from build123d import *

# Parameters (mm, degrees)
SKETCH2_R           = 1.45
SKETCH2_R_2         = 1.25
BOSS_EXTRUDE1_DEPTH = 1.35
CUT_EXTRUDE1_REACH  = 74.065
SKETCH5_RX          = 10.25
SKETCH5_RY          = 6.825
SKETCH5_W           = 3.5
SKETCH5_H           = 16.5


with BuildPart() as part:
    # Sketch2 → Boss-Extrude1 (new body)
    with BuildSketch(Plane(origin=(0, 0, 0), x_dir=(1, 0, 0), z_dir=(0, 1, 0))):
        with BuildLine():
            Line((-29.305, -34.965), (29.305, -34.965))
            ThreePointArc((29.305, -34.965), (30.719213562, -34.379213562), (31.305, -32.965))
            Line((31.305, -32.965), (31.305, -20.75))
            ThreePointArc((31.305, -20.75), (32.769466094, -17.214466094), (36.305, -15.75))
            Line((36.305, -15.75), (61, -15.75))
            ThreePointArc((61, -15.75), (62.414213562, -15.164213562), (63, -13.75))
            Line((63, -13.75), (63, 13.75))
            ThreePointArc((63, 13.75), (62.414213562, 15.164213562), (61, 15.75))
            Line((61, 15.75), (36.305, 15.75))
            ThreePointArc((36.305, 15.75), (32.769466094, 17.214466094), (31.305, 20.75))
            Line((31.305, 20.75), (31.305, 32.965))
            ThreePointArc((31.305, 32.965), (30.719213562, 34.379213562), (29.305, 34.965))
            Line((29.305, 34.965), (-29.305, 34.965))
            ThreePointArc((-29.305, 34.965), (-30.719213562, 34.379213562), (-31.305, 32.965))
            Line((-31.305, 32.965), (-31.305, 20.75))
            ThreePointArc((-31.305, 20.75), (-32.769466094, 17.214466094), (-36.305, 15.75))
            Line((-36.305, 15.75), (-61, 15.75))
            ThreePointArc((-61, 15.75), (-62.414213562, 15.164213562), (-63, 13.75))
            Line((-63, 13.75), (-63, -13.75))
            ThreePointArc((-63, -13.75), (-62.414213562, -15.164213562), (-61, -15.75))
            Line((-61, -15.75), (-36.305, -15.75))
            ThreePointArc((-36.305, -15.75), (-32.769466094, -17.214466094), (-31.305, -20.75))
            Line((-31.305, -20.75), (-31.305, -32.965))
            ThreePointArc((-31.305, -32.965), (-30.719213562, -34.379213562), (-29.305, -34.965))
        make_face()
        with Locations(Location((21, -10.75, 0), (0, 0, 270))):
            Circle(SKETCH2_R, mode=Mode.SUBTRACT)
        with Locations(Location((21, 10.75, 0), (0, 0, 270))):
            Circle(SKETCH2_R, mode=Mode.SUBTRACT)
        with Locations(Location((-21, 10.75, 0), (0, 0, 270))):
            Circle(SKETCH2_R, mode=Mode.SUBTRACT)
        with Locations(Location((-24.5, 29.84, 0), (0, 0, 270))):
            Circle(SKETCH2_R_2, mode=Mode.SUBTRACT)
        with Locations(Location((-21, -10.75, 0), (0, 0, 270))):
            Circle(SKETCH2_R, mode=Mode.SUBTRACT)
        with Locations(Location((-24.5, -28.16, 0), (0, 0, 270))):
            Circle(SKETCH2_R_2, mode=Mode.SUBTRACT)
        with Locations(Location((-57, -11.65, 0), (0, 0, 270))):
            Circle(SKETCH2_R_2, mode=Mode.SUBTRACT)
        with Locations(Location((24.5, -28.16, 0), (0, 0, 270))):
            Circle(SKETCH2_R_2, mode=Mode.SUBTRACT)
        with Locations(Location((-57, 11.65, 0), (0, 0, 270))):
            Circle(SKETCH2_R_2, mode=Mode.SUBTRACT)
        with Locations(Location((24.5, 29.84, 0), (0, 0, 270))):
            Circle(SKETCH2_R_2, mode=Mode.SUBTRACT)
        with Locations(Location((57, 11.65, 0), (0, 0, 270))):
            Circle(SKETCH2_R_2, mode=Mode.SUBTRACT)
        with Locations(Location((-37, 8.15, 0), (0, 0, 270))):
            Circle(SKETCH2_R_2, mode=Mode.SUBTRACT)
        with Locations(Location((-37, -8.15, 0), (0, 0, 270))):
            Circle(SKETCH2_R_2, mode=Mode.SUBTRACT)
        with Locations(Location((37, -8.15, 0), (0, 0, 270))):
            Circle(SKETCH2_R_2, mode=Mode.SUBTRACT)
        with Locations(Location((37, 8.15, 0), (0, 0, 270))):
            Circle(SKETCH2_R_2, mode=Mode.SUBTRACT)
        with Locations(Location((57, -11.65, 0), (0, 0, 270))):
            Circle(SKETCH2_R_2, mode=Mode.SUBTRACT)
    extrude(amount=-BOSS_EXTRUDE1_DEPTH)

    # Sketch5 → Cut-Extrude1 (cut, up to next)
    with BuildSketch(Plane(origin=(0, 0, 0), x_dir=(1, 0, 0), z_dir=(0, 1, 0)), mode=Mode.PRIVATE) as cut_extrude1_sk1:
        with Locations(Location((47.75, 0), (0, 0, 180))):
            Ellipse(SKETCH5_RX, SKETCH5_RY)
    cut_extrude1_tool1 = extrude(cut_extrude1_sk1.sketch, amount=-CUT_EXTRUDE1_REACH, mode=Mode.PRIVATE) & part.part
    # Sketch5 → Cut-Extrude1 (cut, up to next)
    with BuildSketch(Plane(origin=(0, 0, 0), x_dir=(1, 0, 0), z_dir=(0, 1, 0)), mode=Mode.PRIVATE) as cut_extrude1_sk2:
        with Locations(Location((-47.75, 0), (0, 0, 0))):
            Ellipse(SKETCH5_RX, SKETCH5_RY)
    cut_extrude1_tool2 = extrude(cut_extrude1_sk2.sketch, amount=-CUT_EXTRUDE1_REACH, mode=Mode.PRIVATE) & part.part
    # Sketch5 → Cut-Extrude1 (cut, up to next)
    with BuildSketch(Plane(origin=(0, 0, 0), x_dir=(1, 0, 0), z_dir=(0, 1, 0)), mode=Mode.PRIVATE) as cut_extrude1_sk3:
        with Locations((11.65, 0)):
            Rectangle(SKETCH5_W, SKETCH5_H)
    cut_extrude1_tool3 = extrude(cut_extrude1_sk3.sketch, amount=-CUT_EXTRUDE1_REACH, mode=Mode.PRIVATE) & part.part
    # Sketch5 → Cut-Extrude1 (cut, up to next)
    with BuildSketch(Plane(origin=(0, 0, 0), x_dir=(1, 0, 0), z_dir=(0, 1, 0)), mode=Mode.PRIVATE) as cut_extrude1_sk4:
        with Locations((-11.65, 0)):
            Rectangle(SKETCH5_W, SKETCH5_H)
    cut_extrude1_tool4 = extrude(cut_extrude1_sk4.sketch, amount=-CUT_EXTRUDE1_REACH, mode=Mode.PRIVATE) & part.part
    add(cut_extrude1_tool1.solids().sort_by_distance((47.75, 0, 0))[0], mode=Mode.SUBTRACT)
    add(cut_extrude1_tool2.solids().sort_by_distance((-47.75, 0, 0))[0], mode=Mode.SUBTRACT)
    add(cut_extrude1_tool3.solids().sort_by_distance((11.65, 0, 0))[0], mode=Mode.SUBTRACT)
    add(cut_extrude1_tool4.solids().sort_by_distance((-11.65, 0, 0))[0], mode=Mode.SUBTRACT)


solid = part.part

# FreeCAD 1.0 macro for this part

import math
import FreeCAD as App
import Part
import Sketcher

V = App.Vector
Q = App.Units.Quantity


def add_polygon(sketch, points):
    """Adds a closed chain of lines whose ends are joined by coincident constraints."""
    first, n = sketch.GeometryCount, len(points)
    for a, b in zip(points, points[1:] + points[:1]):
        sketch.addGeometry(Part.LineSegment(App.Vector(*a, 0), App.Vector(*b, 0)), False)
    for i in range(n):
        sketch.addConstraint(Sketcher.Constraint("Coincident", first + i, 2, first + (i + 1) % n, 1))

doc = App.newDocument("Part")
body = doc.addObject("PartDesign::Body", "Body")

# Sketch on XZ plane
sketch1 = body.newObject("Sketcher::SketchObject", "Sketch")
sketch1.AttachmentSupport = (doc.getObject("XZ_Plane"), [""])
sketch1.MapMode = "FlatFace"
sketch1.addGeometry([
    Part.LineSegment(V(-29.3, 35, 0), V(29.3, 35, 0)),  # 0
    Part.ArcOfCircle(Part.Circle(V(29.3, 33, 0), V(0, 0, 1), 2), math.radians(0), math.radians(90)),  # 1
    Part.LineSegment(V(31.3, 33, 0), V(31.3, 20.8, 0)),  # 2
    Part.ArcOfCircle(Part.Circle(V(36.3, 20.8, 0), V(0, 0, 1), 5), math.radians(180), math.radians(270)),  # 3
    Part.LineSegment(V(36.3, 15.8, 0), V(61, 15.8, 0)),  # 4
    Part.ArcOfCircle(Part.Circle(V(61, 13.7, 0), V(0, 0, 1), 2), math.radians(0), math.radians(90)),  # 5
    Part.LineSegment(V(63, 13.8, 0), V(63, -13.8, 0)),  # 6
    Part.ArcOfCircle(Part.Circle(V(61, -13.7, 0), V(0, 0, 1), 2), math.radians(-90), math.radians(0)),  # 7
    Part.LineSegment(V(61, -15.8, 0), V(36.3, -15.8, 0)),  # 8
    Part.ArcOfCircle(Part.Circle(V(36.3, -20.8, 0), V(0, 0, 1), 5), math.radians(90), math.radians(180)),  # 9
    Part.LineSegment(V(31.3, -20.8, 0), V(31.3, -33, 0)),  # 10
    Part.ArcOfCircle(Part.Circle(V(29.3, -33, 0), V(0, 0, 1), 2), math.radians(-90), math.radians(0)),  # 11
    Part.LineSegment(V(29.3, -35, 0), V(-29.3, -35, 0)),  # 12
    Part.ArcOfCircle(Part.Circle(V(-29.3, -33, 0), V(0, 0, 1), 2), math.radians(-180), math.radians(-90)),  # 13
    Part.LineSegment(V(-31.3, -33, 0), V(-31.3, -20.8, 0)),  # 14
    Part.ArcOfCircle(Part.Circle(V(-36.3, -20.8, 0), V(0, 0, 1), 5), math.radians(0), math.radians(90)),  # 15
    Part.LineSegment(V(-36.3, -15.8, 0), V(-61, -15.8, 0)),  # 16
    Part.ArcOfCircle(Part.Circle(V(-61, -13.7, 0), V(0, 0, 1), 2), math.radians(-180), math.radians(-90)),  # 17
    Part.LineSegment(V(-63, -13.8, 0), V(-63, 13.8, 0)),  # 18
    Part.ArcOfCircle(Part.Circle(V(-61, 13.7, 0), V(0, 0, 1), 2), math.radians(90), math.radians(180)),  # 19
    Part.LineSegment(V(-61, 15.8, 0), V(-36.3, 15.8, 0)),  # 20
    Part.ArcOfCircle(Part.Circle(V(-36.3, 20.8, 0), V(0, 0, 1), 5), math.radians(-90), math.radians(0)),  # 21
    Part.LineSegment(V(-31.3, 20.8, 0), V(-31.3, 33, 0)),  # 22
    Part.ArcOfCircle(Part.Circle(V(-29.3, 33, 0), V(0, 0, 1), 2), math.radians(90), math.radians(180)),  # 23
    Part.Circle(V(-24.5, 28.2, 0), V(0, 0, 1), 1.2),  # 24
    Part.Circle(V(-57, 11.7, 0), V(0, 0, 1), 1.2),  # 25
    Part.Circle(V(-37, 8.2, 0), V(0, 0, 1), 1.2),  # 26
    Part.Circle(V(-21, 10.8, 0), V(0, 0, 1), 1.4),  # 27
    Part.Circle(V(24.5, 28.2, 0), V(0, 0, 1), 1.2),  # 28
    Part.Circle(V(21, 10.8, 0), V(0, 0, 1), 1.4),  # 29
    Part.Circle(V(37, 8.2, 0), V(0, 0, 1), 1.2),  # 30
    Part.Circle(V(57, 11.7, 0), V(0, 0, 1), 1.2),  # 31
    Part.Circle(V(-37, -8.2, 0), V(0, 0, 1), 1.2),  # 32
    Part.Circle(V(-57, -11.7, 0), V(0, 0, 1), 1.2),  # 33
    Part.Circle(V(-21, -10.8, 0), V(0, 0, 1), 1.4),  # 34
    Part.Circle(V(-24.5, -29.8, 0), V(0, 0, 1), 1.2),  # 35
    Part.Circle(V(21, -10.8, 0), V(0, 0, 1), 1.4),  # 36
    Part.Circle(V(37, -8.2, 0), V(0, 0, 1), 1.2),  # 37
    Part.Circle(V(57, -11.7, 0), V(0, 0, 1), 1.2),  # 38
    Part.Circle(V(24.5, -29.8, 0), V(0, 0, 1), 1.2),  # 39
], False)
sketch1.addConstraint([
    Sketcher.Constraint("Tangent", 0, 2, 1, 2),
    Sketcher.Constraint("Tangent", 1, 1, 2, 1),
    Sketcher.Constraint("Tangent", 2, 2, 3, 1),
    Sketcher.Constraint("Tangent", 3, 2, 4, 1),
    Sketcher.Constraint("Tangent", 4, 2, 5, 2),
    Sketcher.Constraint("Tangent", 5, 1, 6, 1),
    Sketcher.Constraint("Tangent", 6, 2, 7, 2),
    Sketcher.Constraint("Tangent", 7, 1, 8, 1),
    Sketcher.Constraint("Tangent", 8, 2, 9, 1),
    Sketcher.Constraint("Tangent", 9, 2, 10, 1),
    Sketcher.Constraint("Tangent", 10, 2, 11, 2),
    Sketcher.Constraint("Tangent", 11, 1, 12, 1),
    Sketcher.Constraint("Tangent", 12, 2, 13, 2),
    Sketcher.Constraint("Tangent", 13, 1, 14, 1),
    Sketcher.Constraint("Tangent", 14, 2, 15, 1),
    Sketcher.Constraint("Tangent", 15, 2, 16, 1),
    Sketcher.Constraint("Tangent", 16, 2, 17, 2),
    Sketcher.Constraint("Tangent", 17, 1, 18, 1),
    Sketcher.Constraint("Tangent", 18, 2, 19, 2),
    Sketcher.Constraint("Tangent", 19, 1, 20, 1),
    Sketcher.Constraint("Tangent", 20, 2, 21, 1),
    Sketcher.Constraint("Tangent", 21, 2, 22, 1),
    Sketcher.Constraint("Tangent", 22, 2, 23, 2),
    Sketcher.Constraint("Tangent", 23, 1, 0, 1),
    Sketcher.Constraint("Horizontal", 0),
    Sketcher.Constraint("Vertical", 2),
    Sketcher.Constraint("Horizontal", 4),
    Sketcher.Constraint("Vertical", 6),
    Sketcher.Constraint("Horizontal", 8),
    Sketcher.Constraint("Vertical", 10),
    Sketcher.Constraint("Horizontal", 12),
    Sketcher.Constraint("Vertical", 14),
    Sketcher.Constraint("Horizontal", 16),
    Sketcher.Constraint("Vertical", 18),
    Sketcher.Constraint("Horizontal", 20),
    Sketcher.Constraint("Vertical", 22),
    Sketcher.Constraint("Equal", 1, 5),
    Sketcher.Constraint("Equal", 5, 7),
    Sketcher.Constraint("Equal", 3, 9),
    Sketcher.Constraint("Equal", 7, 11),
    Sketcher.Constraint("Equal", 11, 13),
    Sketcher.Constraint("Equal", 9, 15),
    Sketcher.Constraint("Equal", 13, 17),
    Sketcher.Constraint("Equal", 17, 19),
    Sketcher.Constraint("Equal", 15, 21),
    Sketcher.Constraint("Equal", 19, 23),
    Sketcher.Constraint("Equal", 24, 25),
    Sketcher.Constraint("Equal", 25, 26),
    Sketcher.Constraint("Equal", 26, 28),
    Sketcher.Constraint("Equal", 27, 29),
    Sketcher.Constraint("Equal", 28, 30),
    Sketcher.Constraint("Equal", 30, 31),
    Sketcher.Constraint("Equal", 31, 32),
    Sketcher.Constraint("Equal", 32, 33),
    Sketcher.Constraint("Equal", 29, 34),
    Sketcher.Constraint("Equal", 33, 35),
    Sketcher.Constraint("Equal", 34, 36),
    Sketcher.Constraint("Equal", 35, 37),
    Sketcher.Constraint("Equal", 37, 38),
    Sketcher.Constraint("Equal", 38, 39),
    Sketcher.Constraint("Symmetric", 1, 3, 13, 3, -1, 1),
    Sketcher.Constraint("Symmetric", 5, 3, 17, 3, -1, 1),
    Sketcher.Constraint("Symmetric", 9, 3, 21, 3, -1, 1),
    Sketcher.Constraint("Symmetric", 30, 3, 32, 3, -1, 1),
    Sketcher.Constraint("Symmetric", 31, 3, 33, 3, -1, 1),
    Sketcher.Constraint("Symmetric", 29, 3, 34, 3, -1, 1),
    Sketcher.Constraint("Symmetric", 27, 3, 36, 3, -1, 1),
    Sketcher.Constraint("Symmetric", 26, 3, 37, 3, -1, 1),
    Sketcher.Constraint("Symmetric", 25, 3, 38, 3, -1, 1),
    Sketcher.Constraint("Symmetric", 9, 3, 15, 3, -2),
    Sketcher.Constraint("Symmetric", 24, 3, 28, 3, -2),
    Sketcher.Constraint("Symmetric", 27, 3, 29, 3, -2),
    Sketcher.Constraint("Symmetric", 26, 3, 30, 3, -2),
    Sketcher.Constraint("Symmetric", 25, 3, 31, 3, -2),
    Sketcher.Constraint("Symmetric", 35, 3, 39, 3, -2),
    Sketcher.Constraint("Vertical", 24, 3, 35, 3),
    Sketcher.Constraint("Radius", 1, Q("2 mm")),
    Sketcher.Constraint("Radius", 3, Q("5 mm")),
    Sketcher.Constraint("Diameter", 24, Q("2.5 mm")),
    Sketcher.Constraint("Diameter", 27, Q("2.9 mm")),
    Sketcher.Constraint("DistanceY", 6, 2, 6, 1, Q("27.5 mm")),
    Sketcher.Constraint("DistanceX", -1, 1, 5, 3, Q("61 mm")),
    Sketcher.Constraint("DistanceX", 25, 3, -1, 1, Q("57 mm")),
    Sketcher.Constraint("DistanceX", 26, 3, -1, 1, Q("37 mm")),
    Sketcher.Constraint("DistanceX", 27, 3, -1, 1, Q("21 mm")),
    Sketcher.Constraint("DistanceY", 27, 3, 21, 3, Q("10 mm")),
    Sketcher.Constraint("DistanceX", 24, 3, 28, 3, Q("49 mm")),
    Sketcher.Constraint("DistanceX", 0, 1, 0, 2, Q("58.61 mm")),
    Sketcher.Constraint("DistanceY", 25, 3, 19, 3, Q("2.1 mm")),
    Sketcher.Constraint("DistanceY", 26, 3, 21, 3, Q("12.6 mm")),
    Sketcher.Constraint("DistanceY", 2, 2, 2, 1, Q("12.215 mm")),
    Sketcher.Constraint("DistanceY", -1, 1, 24, 3, Q("28.16 mm")),
    Sketcher.Constraint("DistanceY", 35, 3, -1, 1, Q("29.84 mm")),
])
pad1 = body.newObject("PartDesign::Pad", "Pad")
pad1.Profile = sketch1
pad1.Length = 1.35

# Sketch on XZ plane
sketch2 = body.newObject("Sketcher::SketchObject", "Sketch001")
sketch2.AttachmentSupport = (doc.getObject("XZ_Plane"), [""])
sketch2.MapMode = "FlatFace"
sketch2.addGeometry(Part.Ellipse(V(37.5, 0, 0), V(47.75, -6.825, 0), V(47.75, 0, 0)), False)
sketch2.addConstraint(Sketcher.Constraint("Block", 0))
pocket1 = body.newObject("PartDesign::Pocket", "Pocket")
pocket1.Profile = sketch2
pocket1.Type = "UpToFirst"
pocket1.Reversed = True

# Sketch on XZ plane
sketch3 = body.newObject("Sketcher::SketchObject", "Sketch002")
sketch3.AttachmentSupport = (doc.getObject("XZ_Plane"), [""])
sketch3.MapMode = "FlatFace"
sketch3.addGeometry(Part.Ellipse(V(-37.5, 0, 0), V(-47.75, 6.825, 0), V(-47.75, 0, 0)), False)
sketch3.addConstraint(Sketcher.Constraint("Block", 0))
pocket2 = body.newObject("PartDesign::Pocket", "Pocket001")
pocket2.Profile = sketch3
pocket2.Type = "UpToFirst"
pocket2.Reversed = True

# Sketch on XZ plane
sketch4 = body.newObject("Sketcher::SketchObject", "Sketch003")
sketch4.AttachmentSupport = (doc.getObject("XZ_Plane"), [""])
sketch4.MapMode = "FlatFace"
add_polygon(sketch4, [(9.9, -8.2), (9.9, 8.2), (13.4, 8.2), (13.4, -8.2)])  # lines 0-3
sketch4.addConstraint([
    Sketcher.Constraint("Vertical", 0),
    Sketcher.Constraint("Horizontal", 1),
    Sketcher.Constraint("Vertical", 2),
    Sketcher.Constraint("Horizontal", 3),
    Sketcher.Constraint("DistanceX", 1, 1, 1, 2, Q("3.5 mm")),
    Sketcher.Constraint("DistanceY", 0, 1, 0, 2, Q("16.5 mm")),
    Sketcher.Constraint("DistanceX", -1, 1, 0, 2, Q("9.9 mm")),
    Sketcher.Constraint("DistanceY", -1, 1, 0, 2, Q("8.25 mm")),
])
pocket3 = body.newObject("PartDesign::Pocket", "Pocket002")
pocket3.Profile = sketch4
pocket3.Type = "UpToFirst"
pocket3.Reversed = True

# Sketch on XZ plane
sketch5 = body.newObject("Sketcher::SketchObject", "Sketch004")
sketch5.AttachmentSupport = (doc.getObject("XZ_Plane"), [""])
sketch5.MapMode = "FlatFace"
add_polygon(sketch5, [(-13.4, -8.2), (-13.4, 8.2), (-9.9, 8.2), (-9.9, -8.2)])  # lines 0-3
sketch5.addConstraint([
    Sketcher.Constraint("Vertical", 0),
    Sketcher.Constraint("Horizontal", 1),
    Sketcher.Constraint("Vertical", 2),
    Sketcher.Constraint("Horizontal", 3),
    Sketcher.Constraint("DistanceX", 1, 1, 1, 2, Q("3.5 mm")),
    Sketcher.Constraint("DistanceY", 0, 1, 0, 2, Q("16.5 mm")),
    Sketcher.Constraint("DistanceX", 0, 2, -1, 1, Q("13.4 mm")),
    Sketcher.Constraint("DistanceY", -1, 1, 0, 2, Q("8.25 mm")),
])
pocket4 = body.newObject("PartDesign::Pocket", "Pocket003")
pocket4.Profile = sketch5
pocket4.Type = "UpToFirst"
pocket4.Reversed = True

doc.recompute()
